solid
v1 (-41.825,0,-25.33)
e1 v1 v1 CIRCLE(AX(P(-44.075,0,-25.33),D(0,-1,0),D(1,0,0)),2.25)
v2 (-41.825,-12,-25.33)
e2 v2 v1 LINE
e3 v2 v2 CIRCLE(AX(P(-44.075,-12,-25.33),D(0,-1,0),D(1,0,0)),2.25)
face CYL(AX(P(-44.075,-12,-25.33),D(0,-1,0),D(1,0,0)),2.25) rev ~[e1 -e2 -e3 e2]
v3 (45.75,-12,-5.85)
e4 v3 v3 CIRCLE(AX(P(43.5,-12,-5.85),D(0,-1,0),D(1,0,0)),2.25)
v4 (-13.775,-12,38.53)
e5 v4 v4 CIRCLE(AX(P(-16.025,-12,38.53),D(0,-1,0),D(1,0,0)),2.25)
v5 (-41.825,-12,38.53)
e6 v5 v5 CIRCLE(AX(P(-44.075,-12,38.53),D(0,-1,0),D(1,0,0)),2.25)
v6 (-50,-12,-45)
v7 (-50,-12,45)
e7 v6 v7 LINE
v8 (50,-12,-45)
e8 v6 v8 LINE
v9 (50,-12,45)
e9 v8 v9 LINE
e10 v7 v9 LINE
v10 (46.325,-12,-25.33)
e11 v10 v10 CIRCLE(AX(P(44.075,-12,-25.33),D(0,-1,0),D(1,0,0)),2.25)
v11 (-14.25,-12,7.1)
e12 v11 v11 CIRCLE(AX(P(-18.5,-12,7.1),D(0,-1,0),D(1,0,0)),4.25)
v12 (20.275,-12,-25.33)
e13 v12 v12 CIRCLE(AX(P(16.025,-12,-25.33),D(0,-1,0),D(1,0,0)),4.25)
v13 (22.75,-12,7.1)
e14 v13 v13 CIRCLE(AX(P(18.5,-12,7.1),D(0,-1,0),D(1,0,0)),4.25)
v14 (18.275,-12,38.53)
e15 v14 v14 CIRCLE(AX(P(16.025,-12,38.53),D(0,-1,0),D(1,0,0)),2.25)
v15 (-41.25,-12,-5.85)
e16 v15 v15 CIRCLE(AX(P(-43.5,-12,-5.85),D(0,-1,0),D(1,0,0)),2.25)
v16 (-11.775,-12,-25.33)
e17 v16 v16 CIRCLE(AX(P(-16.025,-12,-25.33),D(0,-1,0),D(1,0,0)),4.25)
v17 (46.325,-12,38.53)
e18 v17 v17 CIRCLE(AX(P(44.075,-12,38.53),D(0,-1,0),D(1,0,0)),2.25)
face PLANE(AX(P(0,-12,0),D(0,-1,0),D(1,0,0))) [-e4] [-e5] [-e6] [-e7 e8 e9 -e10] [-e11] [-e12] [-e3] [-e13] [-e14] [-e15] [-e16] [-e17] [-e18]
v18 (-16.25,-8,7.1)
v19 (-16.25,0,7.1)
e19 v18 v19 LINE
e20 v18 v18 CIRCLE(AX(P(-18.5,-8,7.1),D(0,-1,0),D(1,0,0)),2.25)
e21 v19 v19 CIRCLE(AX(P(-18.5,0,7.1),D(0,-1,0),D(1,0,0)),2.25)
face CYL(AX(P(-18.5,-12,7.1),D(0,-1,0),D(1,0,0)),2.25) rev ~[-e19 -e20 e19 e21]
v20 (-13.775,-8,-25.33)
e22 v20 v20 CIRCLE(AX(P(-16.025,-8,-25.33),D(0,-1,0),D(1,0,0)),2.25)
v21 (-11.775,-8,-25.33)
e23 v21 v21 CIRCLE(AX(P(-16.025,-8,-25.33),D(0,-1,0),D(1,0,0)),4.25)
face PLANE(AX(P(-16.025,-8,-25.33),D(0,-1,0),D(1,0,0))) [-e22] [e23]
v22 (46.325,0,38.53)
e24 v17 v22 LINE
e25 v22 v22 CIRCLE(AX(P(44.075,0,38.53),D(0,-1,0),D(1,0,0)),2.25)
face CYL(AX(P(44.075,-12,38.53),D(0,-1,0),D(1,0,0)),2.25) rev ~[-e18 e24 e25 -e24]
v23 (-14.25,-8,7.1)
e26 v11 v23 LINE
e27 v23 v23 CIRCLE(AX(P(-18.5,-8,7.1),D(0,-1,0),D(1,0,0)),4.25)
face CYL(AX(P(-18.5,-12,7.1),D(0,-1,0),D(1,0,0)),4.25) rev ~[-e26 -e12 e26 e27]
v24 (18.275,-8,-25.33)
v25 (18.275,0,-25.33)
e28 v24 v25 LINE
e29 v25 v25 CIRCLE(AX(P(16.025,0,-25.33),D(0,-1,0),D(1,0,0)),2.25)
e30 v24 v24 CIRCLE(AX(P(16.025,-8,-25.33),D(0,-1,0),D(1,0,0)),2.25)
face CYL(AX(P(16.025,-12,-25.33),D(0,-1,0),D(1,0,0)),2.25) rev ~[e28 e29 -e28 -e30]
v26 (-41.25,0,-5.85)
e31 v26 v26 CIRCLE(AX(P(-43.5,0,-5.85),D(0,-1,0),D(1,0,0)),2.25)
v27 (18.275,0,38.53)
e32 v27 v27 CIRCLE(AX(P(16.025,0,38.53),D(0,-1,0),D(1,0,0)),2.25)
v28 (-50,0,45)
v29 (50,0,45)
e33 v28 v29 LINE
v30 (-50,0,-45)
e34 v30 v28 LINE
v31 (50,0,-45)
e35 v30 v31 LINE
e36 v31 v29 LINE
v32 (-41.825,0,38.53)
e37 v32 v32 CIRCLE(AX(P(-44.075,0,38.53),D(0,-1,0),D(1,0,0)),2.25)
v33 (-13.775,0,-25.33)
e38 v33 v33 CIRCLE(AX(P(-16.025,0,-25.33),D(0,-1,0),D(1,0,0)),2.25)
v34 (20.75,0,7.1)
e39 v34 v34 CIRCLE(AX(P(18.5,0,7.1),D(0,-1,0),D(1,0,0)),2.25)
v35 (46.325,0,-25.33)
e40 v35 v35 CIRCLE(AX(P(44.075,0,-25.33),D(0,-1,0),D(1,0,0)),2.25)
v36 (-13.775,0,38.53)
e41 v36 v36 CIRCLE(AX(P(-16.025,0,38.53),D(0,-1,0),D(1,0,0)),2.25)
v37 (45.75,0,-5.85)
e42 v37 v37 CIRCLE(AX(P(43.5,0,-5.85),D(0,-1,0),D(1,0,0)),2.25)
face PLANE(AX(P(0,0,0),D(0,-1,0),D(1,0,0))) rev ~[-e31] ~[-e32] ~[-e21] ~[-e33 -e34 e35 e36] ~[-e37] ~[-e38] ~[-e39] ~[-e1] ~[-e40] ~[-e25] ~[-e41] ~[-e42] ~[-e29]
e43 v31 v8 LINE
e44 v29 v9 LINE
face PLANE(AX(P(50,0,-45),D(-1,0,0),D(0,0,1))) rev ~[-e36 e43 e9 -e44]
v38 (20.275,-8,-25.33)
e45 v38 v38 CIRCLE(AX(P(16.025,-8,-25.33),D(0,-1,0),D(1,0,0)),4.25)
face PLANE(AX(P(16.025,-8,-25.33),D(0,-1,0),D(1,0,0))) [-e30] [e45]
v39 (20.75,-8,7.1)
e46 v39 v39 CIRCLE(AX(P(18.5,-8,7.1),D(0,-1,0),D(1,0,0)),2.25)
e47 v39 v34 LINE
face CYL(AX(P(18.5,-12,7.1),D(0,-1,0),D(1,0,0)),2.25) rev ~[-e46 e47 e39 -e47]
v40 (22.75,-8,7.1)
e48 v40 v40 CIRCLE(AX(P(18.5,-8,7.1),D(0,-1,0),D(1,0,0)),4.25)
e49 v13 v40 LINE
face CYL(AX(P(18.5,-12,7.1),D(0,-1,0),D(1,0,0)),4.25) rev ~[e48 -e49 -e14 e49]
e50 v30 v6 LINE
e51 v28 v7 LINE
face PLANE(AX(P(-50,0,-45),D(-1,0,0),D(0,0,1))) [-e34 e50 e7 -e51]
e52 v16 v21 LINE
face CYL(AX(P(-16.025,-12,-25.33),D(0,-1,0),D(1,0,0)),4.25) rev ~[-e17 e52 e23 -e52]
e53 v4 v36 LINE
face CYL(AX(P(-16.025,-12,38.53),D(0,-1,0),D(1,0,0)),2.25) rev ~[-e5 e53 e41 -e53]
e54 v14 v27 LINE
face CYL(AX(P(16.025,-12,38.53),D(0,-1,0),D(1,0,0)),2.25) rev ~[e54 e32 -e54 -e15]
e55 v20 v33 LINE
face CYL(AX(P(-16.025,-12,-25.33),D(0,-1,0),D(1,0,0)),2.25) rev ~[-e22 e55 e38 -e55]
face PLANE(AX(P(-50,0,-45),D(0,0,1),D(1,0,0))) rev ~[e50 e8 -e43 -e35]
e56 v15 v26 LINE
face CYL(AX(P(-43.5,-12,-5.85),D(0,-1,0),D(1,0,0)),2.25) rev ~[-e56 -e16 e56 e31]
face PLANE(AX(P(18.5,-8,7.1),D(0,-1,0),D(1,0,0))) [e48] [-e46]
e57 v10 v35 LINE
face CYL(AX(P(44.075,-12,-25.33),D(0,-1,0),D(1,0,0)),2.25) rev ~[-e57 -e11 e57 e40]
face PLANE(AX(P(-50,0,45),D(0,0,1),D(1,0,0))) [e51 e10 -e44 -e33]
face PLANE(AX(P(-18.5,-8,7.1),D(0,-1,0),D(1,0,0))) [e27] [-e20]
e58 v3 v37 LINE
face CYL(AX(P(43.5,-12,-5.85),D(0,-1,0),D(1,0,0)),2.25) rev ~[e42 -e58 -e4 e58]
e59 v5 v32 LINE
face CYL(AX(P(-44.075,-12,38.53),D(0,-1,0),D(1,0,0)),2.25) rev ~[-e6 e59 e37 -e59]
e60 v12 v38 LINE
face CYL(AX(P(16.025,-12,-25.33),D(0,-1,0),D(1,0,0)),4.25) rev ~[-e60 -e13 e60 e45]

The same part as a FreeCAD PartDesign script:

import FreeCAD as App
import Part
import Sketcher
from FreeCAD import Vector


def add_polygon(sketch, points):
    """Adds a closed chain of lines whose ends are joined by coincident constraints."""
    first, n = sketch.GeometryCount, len(points)
    for a, b in zip(points, points[1:] + points[:1]):
        sketch.addGeometry(Part.LineSegment(App.Vector(*a, 0), App.Vector(*b, 0)), False)
    for i in range(n):
        sketch.addConstraint(Sketcher.Constraint("Coincident", first + i, 2, first + (i + 1) % n, 1))

doc = App.newDocument("Part")
params = doc.addObject("Spreadsheet::Sheet", "Params")
for row, (alias, value) in enumerate([
    ("sketch1_width", "100 mm"),
    ("sketch1_height", "90 mm"),
    ("pad1_length", "12 mm"),
    ("sketch2_diameter", "4.5 mm"),
    ("sketch3_diameter", "8.5 mm"),
    ("pocket2_length", "4 mm"),
], start=1):
    params.set(f"A{row}", alias)
    params.set(f"B{row}", "=" + value)
    params.setAlias(f"B{row}", alias)

body = doc.addObject("PartDesign::Body", "Body")

# Sketch on XZ plane
sketch1 = doc.addObject("Sketcher::SketchObject", "Sketch")
body.addObject(sketch1)
sketch1.AttachmentSupport = (doc.XZ_Plane, [""])
sketch1.MapMode = "FlatFace"
add_polygon(sketch1, [(-50, 45), (-50, -45), (50, -45), (50, 45)])  # lines 0-3
sketch1.addConstraint([
    Sketcher.Constraint("Vertical", 0),
    Sketcher.Constraint("Horizontal", 1),
    Sketcher.Constraint("Vertical", 2),
    Sketcher.Constraint("Horizontal", 3),
    Sketcher.Constraint("Symmetric", 0, 2, 2, 2, -1, 1),
    Sketcher.Constraint("DistanceX", 1, 1, 1, 2, 100.0),
    Sketcher.Constraint("DistanceY", 0, 2, 0, 1, 90.0),
])
sketch1.setExpression("Constraints[9]", "Params.sketch1_width")
sketch1.setExpression("Constraints[10]", "Params.sketch1_height")
pad1 = doc.addObject("PartDesign::Pad", "Pad")
body.addObject(pad1)
pad1.Profile = sketch1
pad1.setExpression("Length", "Params.pad1_length")

# Sketch on XZ plane
sketch2 = doc.addObject("Sketcher::SketchObject", "Sketch001")
body.addObject(sketch2)
sketch2.AttachmentSupport = (doc.XZ_Plane, [""])
sketch2.MapMode = "FlatFace"
sketch2.AttachmentOffset = App.Placement(Vector(0, 0, 12), App.Rotation())
sketch2.addGeometry([
    Part.Circle(Vector(-44.1, -25.3, 0), Vector(0, 0, 1), 2.2),  # 0
    Part.Circle(Vector(-43.5, -5.8, 0), Vector(0, 0, 1), 2.2),  # 1
    Part.Circle(Vector(-16, -25.3, 0), Vector(0, 0, 1), 2.2),  # 2
    Part.Circle(Vector(16, -25.3, 0), Vector(0, 0, 1), 2.2),  # 3
    Part.Circle(Vector(44.1, -25.3, 0), Vector(0, 0, 1), 2.2),  # 4
    Part.Circle(Vector(43.5, -5.8, 0), Vector(0, 0, 1), 2.2),  # 5
    Part.Circle(Vector(-44.1, 38.5, 0), Vector(0, 0, 1), 2.2),  # 6
    Part.Circle(Vector(-16, 38.5, 0), Vector(0, 0, 1), 2.2),  # 7
    Part.Circle(Vector(16, 38.5, 0), Vector(0, 0, 1), 2.2),  # 8
    Part.Circle(Vector(44.1, 38.5, 0), Vector(0, 0, 1), 2.2),  # 9
    Part.Circle(Vector(-18.5, 7.1, 0), Vector(0, 0, 1), 2.2),  # 10
    Part.Circle(Vector(18.5, 7.1, 0), Vector(0, 0, 1), 2.2),  # 11
], False)
sketch2.addConstraint([
    Sketcher.Constraint("Equal", 0, 1),
    Sketcher.Constraint("Equal", 1, 2),
    Sketcher.Constraint("Equal", 2, 3),
    Sketcher.Constraint("Equal", 3, 4),
    Sketcher.Constraint("Equal", 4, 5),
    Sketcher.Constraint("Equal", 5, 6),
    Sketcher.Constraint("Equal", 6, 7),
    Sketcher.Constraint("Equal", 7, 8),
    Sketcher.Constraint("Equal", 8, 9),
    Sketcher.Constraint("Equal", 9, 10),
    Sketcher.Constraint("Equal", 10, 11),
    Sketcher.Constraint("Symmetric", 2, 3, 3, 3, -2),
    Sketcher.Constraint("Symmetric", 0, 3, 4, 3, -2),
    Sketcher.Constraint("Symmetric", 1, 3, 5, 3, -2),
    Sketcher.Constraint("Symmetric", 7, 3, 8, 3, -2),
    Sketcher.Constraint("Symmetric", 6, 3, 9, 3, -2),
    Sketcher.Constraint("Symmetric", 10, 3, 11, 3, -2),
    Sketcher.Constraint("Horizontal", 0, 3, 2, 3),
    Sketcher.Constraint("Horizontal", 6, 3, 7, 3),
    Sketcher.Constraint("Vertical", 0, 3, 6, 3),
    Sketcher.Constraint("Vertical", 2, 3, 7, 3),
    Sketcher.Constraint("Diameter", 0, 4.5),
    Sketcher.Constraint("DistanceX", 1, 3, 5, 3, 87.0),
    Sketcher.Constraint("DistanceX", 1, 3, 10, 3, 25.0),
    Sketcher.Constraint("DistanceY", -1, 1, 10, 3, 7.1),
    Sketcher.Constraint("DistanceX", 0, 3, 3, 3, 60.1),
    Sketcher.Constraint("DistanceY", 0, 3, -1, 1, 25.33),
    Sketcher.Constraint("DistanceY", 1, 3, -1, 1, 5.85),
    Sketcher.Constraint("DistanceY", -1, 1, 6, 3, 38.53),
    Sketcher.Constraint("DistanceX", 0, 3, 2, 3, 28.05),
])
sketch2.setExpression("Constraints[21]", "Params.sketch2_diameter")
pocket1 = doc.addObject("PartDesign::Pocket", "Pocket")
body.addObject(pocket1)
pocket1.Profile = sketch2
pocket1.Type = "ThroughAll"

# Sketch on XZ plane
sketch3 = doc.addObject("Sketcher::SketchObject", "Sketch002")
body.addObject(sketch3)
sketch3.AttachmentSupport = (doc.XZ_Plane, [""])
sketch3.MapMode = "FlatFace"
sketch3.AttachmentOffset = App.Placement(Vector(0, 0, 12), App.Rotation())
sketch3.addGeometry([
    Part.Circle(Vector(-16, -25.3, 0), Vector(0, 0, 1), 4.2),
    Part.Circle(Vector(16, -25.3, 0), Vector(0, 0, 1), 4.2),
    Part.Circle(Vector(-18.5, 7.1, 0), Vector(0, 0, 1), 4.2),
    Part.Circle(Vector(18.5, 7.1, 0), Vector(0, 0, 1), 4.2),
], False)
sketch3.addConstraint([
    Sketcher.Constraint("Equal", 0, 1),
    Sketcher.Constraint("Equal", 1, 2),
    Sketcher.Constraint("Equal", 2, 3),
    Sketcher.Constraint("Symmetric", 0, 3, 1, 3, -2),
    Sketcher.Constraint("Symmetric", 2, 3, 3, 3, -2),
    Sketcher.Constraint("Diameter", 0, 8.5),
    Sketcher.Constraint("DistanceX", 2, 3, 3, 3, 37.0),
    Sketcher.Constraint("DistanceY", -1, 1, 2, 3, 7.1),
    Sketcher.Constraint("DistanceY", 0, 3, -1, 1, 25.33),
    Sketcher.Constraint("DistanceX", 0, 3, 1, 3, 32.05),
])
sketch3.setExpression("Constraints[5]", "Params.sketch3_diameter")
pocket2 = doc.addObject("PartDesign::Pocket", "Pocket001")
body.addObject(pocket2)
pocket2.Profile = sketch3
pocket2.setExpression("Length", "Params.pocket2_length")

doc.recompute()
